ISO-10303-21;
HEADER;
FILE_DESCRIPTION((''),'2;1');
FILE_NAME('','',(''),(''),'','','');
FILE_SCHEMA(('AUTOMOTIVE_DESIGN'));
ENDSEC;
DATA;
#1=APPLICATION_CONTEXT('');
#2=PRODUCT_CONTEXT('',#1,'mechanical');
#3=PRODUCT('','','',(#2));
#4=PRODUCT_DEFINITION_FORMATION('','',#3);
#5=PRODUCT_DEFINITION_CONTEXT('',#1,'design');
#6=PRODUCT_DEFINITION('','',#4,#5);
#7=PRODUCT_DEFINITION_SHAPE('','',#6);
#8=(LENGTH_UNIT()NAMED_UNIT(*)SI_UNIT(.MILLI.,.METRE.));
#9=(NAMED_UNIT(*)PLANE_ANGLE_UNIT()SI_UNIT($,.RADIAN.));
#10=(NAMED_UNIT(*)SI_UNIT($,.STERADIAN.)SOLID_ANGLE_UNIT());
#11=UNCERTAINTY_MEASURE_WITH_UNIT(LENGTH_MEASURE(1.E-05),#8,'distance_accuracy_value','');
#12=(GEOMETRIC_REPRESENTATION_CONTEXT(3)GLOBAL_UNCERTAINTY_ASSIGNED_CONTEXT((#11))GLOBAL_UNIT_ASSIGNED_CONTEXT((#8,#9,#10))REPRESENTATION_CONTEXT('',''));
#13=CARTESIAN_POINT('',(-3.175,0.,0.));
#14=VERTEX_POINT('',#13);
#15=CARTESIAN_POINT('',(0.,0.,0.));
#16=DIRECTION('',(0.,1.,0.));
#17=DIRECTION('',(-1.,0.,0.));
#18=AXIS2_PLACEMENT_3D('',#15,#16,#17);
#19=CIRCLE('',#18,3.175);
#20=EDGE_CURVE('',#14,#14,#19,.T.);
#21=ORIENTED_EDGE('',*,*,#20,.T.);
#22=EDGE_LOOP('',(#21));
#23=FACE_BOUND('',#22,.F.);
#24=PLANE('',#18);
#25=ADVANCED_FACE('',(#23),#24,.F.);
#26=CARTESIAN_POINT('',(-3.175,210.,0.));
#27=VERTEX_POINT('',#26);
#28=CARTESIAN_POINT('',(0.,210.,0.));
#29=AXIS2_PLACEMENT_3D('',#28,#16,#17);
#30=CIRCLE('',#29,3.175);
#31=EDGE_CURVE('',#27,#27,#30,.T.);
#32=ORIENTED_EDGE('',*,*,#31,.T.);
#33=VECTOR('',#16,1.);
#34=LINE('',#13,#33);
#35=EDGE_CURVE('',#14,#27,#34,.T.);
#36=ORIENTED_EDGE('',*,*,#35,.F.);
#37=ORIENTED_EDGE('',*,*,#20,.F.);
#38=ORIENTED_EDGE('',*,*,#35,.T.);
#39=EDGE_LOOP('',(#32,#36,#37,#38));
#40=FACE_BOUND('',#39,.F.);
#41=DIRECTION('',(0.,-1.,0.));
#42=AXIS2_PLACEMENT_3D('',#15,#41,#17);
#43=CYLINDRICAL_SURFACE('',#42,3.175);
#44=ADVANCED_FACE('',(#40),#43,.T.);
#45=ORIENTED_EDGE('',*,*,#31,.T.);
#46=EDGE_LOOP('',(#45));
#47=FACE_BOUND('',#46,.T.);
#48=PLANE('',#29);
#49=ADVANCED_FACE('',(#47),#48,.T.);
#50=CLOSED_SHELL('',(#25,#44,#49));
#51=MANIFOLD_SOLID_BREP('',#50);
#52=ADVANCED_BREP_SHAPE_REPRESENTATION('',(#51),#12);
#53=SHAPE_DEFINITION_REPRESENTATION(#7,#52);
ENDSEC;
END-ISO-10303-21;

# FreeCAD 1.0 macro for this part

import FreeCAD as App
import Part
import Sketcher

V = App.Vector
Q = App.Units.Quantity

doc = App.newDocument("Part")
body = doc.addObject("PartDesign::Body", "Body")

sketch1 = doc.addObject("Sketcher::SketchObject", "Sketch")
body.addObject(sketch1)
sketch1.AttachmentSupport = (doc.XZ_Plane, [""])
sketch1.MapMode = "FlatFace"
sketch1.addGeometry(Part.Circle(V(0, 0, 0), V(0, 0, 1), 3.2), False)
sketch1.addConstraint([
    Sketcher.Constraint("Coincident", 0, 3, -1, 1),
    Sketcher.Constraint("Diameter", 0, Q("6.35 mm")),
])
pad1 = doc.addObject("PartDesign::Pad", "Pad")
body.addObject(pad1)
pad1.Profile = sketch1
pad1.Length = 210
pad1.Reversed = True

doc.recompute()
